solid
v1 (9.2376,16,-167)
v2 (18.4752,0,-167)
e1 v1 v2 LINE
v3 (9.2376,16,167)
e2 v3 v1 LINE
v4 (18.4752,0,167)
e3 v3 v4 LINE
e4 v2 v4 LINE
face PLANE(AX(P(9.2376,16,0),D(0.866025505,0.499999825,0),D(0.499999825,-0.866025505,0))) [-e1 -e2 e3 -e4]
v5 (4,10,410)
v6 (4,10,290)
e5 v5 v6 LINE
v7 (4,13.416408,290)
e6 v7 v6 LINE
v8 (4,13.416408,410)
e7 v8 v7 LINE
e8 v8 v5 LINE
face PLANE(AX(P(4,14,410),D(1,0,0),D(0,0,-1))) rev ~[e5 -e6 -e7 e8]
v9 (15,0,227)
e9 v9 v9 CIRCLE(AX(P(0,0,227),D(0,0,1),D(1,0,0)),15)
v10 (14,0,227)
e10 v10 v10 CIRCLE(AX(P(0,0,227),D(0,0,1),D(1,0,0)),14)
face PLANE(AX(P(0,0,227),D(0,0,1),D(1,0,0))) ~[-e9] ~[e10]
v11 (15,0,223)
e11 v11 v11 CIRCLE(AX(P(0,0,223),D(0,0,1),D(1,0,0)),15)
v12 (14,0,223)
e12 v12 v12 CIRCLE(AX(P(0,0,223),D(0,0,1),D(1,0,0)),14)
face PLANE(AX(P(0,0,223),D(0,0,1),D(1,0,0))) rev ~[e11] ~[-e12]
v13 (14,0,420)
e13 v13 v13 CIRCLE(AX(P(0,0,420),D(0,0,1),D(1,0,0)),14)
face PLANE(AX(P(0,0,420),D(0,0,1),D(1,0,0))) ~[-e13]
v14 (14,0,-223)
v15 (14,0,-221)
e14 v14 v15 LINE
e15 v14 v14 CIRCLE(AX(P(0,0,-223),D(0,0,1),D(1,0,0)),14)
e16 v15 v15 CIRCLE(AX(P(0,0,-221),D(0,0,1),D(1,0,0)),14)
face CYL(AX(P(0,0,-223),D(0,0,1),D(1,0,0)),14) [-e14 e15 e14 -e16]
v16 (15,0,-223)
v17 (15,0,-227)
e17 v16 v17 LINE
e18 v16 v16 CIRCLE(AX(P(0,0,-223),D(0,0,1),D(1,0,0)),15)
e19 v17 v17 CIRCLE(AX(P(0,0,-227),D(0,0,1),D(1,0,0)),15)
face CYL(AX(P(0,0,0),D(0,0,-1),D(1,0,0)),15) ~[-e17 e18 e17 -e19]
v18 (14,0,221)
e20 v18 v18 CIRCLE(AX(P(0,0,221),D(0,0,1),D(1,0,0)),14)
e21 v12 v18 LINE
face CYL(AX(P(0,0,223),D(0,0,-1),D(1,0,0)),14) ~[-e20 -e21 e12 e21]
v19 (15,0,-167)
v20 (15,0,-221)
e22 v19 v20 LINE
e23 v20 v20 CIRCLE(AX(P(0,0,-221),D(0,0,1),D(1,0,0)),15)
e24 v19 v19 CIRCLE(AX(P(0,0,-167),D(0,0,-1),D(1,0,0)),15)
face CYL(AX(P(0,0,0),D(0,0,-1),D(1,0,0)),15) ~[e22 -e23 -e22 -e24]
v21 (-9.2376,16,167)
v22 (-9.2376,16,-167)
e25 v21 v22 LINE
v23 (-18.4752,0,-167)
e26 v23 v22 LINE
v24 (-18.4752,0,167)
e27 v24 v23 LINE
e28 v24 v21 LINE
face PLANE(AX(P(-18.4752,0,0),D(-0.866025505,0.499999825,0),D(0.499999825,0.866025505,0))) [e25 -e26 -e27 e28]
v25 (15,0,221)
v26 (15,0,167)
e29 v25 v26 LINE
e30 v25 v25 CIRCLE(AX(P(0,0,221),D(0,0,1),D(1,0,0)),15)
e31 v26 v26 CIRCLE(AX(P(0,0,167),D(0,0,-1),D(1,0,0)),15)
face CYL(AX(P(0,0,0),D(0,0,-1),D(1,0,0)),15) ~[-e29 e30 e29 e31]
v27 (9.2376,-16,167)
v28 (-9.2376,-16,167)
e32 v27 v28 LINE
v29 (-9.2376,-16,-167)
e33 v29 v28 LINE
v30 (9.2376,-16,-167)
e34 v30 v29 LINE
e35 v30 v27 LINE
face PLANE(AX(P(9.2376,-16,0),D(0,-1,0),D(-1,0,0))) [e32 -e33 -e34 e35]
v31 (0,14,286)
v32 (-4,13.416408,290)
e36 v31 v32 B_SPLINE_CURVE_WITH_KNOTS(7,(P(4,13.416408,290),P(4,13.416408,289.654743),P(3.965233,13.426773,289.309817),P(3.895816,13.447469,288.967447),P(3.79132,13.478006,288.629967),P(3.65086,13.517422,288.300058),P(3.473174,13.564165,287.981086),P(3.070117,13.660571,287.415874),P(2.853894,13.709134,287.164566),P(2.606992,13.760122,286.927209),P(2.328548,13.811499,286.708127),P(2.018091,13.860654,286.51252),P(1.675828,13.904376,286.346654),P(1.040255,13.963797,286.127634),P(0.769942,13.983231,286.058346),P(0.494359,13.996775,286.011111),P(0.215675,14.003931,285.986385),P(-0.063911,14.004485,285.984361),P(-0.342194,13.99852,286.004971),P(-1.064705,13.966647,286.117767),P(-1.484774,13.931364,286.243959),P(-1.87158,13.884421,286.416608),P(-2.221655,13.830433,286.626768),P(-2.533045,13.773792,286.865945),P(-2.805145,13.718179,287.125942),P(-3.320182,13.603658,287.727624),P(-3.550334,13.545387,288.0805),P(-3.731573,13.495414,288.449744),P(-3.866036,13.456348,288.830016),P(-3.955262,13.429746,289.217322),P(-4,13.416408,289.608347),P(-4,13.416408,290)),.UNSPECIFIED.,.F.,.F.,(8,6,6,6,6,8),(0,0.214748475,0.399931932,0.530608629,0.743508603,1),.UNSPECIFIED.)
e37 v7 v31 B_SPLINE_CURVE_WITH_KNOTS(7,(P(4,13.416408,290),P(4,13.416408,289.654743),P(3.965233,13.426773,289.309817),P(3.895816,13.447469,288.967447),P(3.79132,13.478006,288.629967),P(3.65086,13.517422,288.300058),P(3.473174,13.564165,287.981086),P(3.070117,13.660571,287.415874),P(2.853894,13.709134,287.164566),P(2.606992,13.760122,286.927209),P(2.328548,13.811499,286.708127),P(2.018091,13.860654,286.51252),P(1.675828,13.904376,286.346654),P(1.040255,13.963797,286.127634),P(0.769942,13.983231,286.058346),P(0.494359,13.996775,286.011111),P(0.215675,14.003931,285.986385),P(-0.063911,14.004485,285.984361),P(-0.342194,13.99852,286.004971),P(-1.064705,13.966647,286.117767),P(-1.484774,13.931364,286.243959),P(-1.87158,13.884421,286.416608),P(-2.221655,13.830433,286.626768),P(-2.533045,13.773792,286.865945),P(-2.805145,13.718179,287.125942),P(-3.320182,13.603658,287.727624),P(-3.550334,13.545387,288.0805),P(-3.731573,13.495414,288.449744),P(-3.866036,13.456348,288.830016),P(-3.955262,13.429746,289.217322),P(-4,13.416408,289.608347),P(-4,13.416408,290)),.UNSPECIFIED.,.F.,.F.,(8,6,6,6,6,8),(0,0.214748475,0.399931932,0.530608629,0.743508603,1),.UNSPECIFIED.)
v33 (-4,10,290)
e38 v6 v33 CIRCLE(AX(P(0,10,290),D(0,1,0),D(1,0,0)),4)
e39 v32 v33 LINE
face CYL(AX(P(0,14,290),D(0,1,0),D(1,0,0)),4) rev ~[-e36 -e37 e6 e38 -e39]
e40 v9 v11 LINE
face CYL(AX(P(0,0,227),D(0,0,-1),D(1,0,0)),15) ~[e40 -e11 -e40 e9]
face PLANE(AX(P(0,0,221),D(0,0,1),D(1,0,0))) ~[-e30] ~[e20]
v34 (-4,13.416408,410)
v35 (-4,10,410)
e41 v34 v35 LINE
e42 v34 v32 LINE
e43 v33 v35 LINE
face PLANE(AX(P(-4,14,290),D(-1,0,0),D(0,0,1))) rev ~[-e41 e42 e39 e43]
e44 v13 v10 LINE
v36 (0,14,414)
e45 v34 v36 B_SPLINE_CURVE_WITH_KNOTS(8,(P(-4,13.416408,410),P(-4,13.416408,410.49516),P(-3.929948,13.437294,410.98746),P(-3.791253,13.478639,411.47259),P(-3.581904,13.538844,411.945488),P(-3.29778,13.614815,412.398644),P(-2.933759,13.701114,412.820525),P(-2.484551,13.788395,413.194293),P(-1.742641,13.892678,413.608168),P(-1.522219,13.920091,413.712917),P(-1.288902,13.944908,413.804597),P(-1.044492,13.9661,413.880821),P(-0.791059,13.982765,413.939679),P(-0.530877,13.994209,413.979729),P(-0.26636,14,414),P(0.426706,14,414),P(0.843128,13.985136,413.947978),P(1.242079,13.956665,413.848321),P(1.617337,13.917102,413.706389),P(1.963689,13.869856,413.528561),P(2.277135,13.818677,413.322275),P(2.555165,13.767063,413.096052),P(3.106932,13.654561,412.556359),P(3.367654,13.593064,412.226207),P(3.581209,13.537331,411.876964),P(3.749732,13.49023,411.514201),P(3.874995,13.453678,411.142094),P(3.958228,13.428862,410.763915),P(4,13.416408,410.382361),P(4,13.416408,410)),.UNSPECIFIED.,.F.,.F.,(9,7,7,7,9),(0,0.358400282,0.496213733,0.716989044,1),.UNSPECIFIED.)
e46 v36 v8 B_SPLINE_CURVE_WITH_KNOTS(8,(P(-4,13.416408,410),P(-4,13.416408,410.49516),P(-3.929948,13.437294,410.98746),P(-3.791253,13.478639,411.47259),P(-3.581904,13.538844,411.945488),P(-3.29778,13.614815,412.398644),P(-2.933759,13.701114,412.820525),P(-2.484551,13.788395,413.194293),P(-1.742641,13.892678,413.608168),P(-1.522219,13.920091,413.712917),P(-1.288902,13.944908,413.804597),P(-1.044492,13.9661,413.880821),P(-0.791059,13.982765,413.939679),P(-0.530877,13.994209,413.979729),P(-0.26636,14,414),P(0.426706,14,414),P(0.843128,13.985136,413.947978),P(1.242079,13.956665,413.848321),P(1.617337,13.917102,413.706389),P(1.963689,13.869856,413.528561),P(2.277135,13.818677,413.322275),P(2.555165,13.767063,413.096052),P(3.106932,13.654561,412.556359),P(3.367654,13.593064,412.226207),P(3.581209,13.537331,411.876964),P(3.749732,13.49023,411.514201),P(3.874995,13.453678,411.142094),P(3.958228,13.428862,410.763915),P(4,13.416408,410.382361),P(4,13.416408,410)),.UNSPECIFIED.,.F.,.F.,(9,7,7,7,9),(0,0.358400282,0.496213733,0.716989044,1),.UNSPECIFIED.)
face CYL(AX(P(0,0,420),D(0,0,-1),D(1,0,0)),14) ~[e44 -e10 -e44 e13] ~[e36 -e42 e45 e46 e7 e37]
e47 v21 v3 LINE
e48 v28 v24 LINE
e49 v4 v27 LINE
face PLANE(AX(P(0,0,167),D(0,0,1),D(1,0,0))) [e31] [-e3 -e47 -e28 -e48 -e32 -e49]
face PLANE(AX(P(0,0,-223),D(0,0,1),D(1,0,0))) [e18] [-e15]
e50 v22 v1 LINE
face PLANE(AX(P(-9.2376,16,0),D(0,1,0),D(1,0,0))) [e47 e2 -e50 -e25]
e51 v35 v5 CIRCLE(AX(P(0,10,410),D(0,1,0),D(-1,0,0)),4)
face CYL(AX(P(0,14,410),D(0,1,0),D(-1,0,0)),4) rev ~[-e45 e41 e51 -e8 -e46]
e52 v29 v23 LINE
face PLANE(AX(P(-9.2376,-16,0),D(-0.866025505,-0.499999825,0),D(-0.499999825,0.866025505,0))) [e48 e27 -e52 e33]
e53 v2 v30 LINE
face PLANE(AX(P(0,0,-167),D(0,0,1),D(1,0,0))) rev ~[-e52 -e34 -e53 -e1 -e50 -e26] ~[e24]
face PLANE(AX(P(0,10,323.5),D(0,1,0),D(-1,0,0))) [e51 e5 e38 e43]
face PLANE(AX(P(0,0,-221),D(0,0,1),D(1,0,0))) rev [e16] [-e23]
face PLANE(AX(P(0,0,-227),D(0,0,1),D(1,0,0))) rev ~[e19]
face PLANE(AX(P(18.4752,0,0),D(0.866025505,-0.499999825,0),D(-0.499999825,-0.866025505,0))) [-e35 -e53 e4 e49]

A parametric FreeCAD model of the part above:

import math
import FreeCAD as App
import Part
import Sketcher
from FreeCAD import Vector
Q = App.Units.Quantity

doc = App.newDocument("Part")
body = doc.addObject("PartDesign::Body", "Body")

# Sketch on XY plane
sketch1 = body.newObject("Sketcher::SketchObject", "Sketch")
sketch1.AttachmentSupport = (doc.getObject("XY_Plane"), [""])
sketch1.MapMode = "FlatFace"
sketch1.addGeometry([
    Part.LineSegment(Vector(-18.4752, 0, 0), Vector(-9.2376, -16, 0)),  # 0
    Part.LineSegment(Vector(-9.2376, -16, 0), Vector(9.2376, -16, 0)),  # 1
    Part.LineSegment(Vector(9.2376, -16, 0), Vector(18.4752, 0, 0)),  # 2
    Part.LineSegment(Vector(18.4752, 0, 0), Vector(9.2376, 16, 0)),  # 3
    Part.LineSegment(Vector(9.2376, 16, 0), Vector(-9.2376, 16, 0)),  # 4
    Part.LineSegment(Vector(-9.2376, 16, 0), Vector(-18.4752, 0, 0)),  # 5
], False)
sketch1.addConstraint([
    Sketcher.Constraint("Coincident", 0, 2, 1, 1),
    Sketcher.Constraint("Coincident", 1, 2, 2, 1),
    Sketcher.Constraint("Coincident", 2, 2, 3, 1),
    Sketcher.Constraint("Coincident", 3, 2, 4, 1),
    Sketcher.Constraint("Coincident", 4, 2, 5, 1),
    Sketcher.Constraint("Coincident", 5, 2, 0, 1),
    Sketcher.Constraint("Horizontal", 1),
    Sketcher.Constraint("Horizontal", 4),
    Sketcher.Constraint("Symmetric", 0, 2, 3, 2, -1, 1),
    Sketcher.Constraint("Symmetric", 2, 2, 5, 2, -1, 1),
    Sketcher.Constraint("PointOnObject", 2, 2, -1),
    Sketcher.Constraint("Parallel", 2, 5),
    Sketcher.Constraint("Vertical", 1, 2, 3, 2),
    Sketcher.Constraint("DistanceY", 1, 2, 3, 2, 32.0),
    Sketcher.Constraint("Angle", 0, Q("-60 deg")),
    Sketcher.Constraint("DistanceX", 1, 1, 1, 2, 18.4752),
])
pad1 = body.newObject("PartDesign::Pad", "Pad")
pad1.Profile = sketch1
pad1.Length = 334
pad1.Midplane = True

# Sketch on XZ plane
sketch2 = body.newObject("Sketcher::SketchObject", "Sketch001")
sketch2.AttachmentSupport = (doc.getObject("XZ_Plane"), [""])
sketch2.MapMode = "FlatFace"
sketch2.addGeometry([
    Part.LineSegment(Vector(15, -227, 0), Vector(0, -227, 0)),  # 0
    Part.LineSegment(Vector(0, -227, 0), Vector(0, 420, 0)),  # 1
    Part.LineSegment(Vector(0, 420, 0), Vector(14, 420, 0)),  # 2
    Part.LineSegment(Vector(14, 420, 0), Vector(14, 227, 0)),  # 3
    Part.LineSegment(Vector(14, 227, 0), Vector(15, 227, 0)),  # 4
    Part.LineSegment(Vector(15, 227, 0), Vector(15, 223, 0)),  # 5
    Part.LineSegment(Vector(15, 223, 0), Vector(14, 223, 0)),  # 6
    Part.LineSegment(Vector(14, 223, 0), Vector(14, 221, 0)),  # 7
    Part.LineSegment(Vector(14, 221, 0), Vector(15, 221, 0)),  # 8
    Part.LineSegment(Vector(15, 221, 0), Vector(15, -221, 0)),  # 9
    Part.LineSegment(Vector(15, -221, 0), Vector(14, -221, 0)),  # 10
    Part.LineSegment(Vector(14, -221, 0), Vector(14, -223, 0)),  # 11
    Part.LineSegment(Vector(14, -223, 0), Vector(15, -223, 0)),  # 12
    Part.LineSegment(Vector(15, -223, 0), Vector(15, -227, 0)),  # 13
], False)
sketch2.addConstraint([
    Sketcher.Constraint("Coincident", 0, 2, 1, 1),
    Sketcher.Constraint("Coincident", 1, 2, 2, 1),
    Sketcher.Constraint("Coincident", 2, 2, 3, 1),
    Sketcher.Constraint("Coincident", 3, 2, 4, 1),
    Sketcher.Constraint("Coincident", 4, 2, 5, 1),
    Sketcher.Constraint("Coincident", 5, 2, 6, 1),
    Sketcher.Constraint("Coincident", 6, 2, 7, 1),
    Sketcher.Constraint("Coincident", 7, 2, 8, 1),
    Sketcher.Constraint("Coincident", 8, 2, 9, 1),
    Sketcher.Constraint("Coincident", 9, 2, 10, 1),
    Sketcher.Constraint("Coincident", 10, 2, 11, 1),
    Sketcher.Constraint("Coincident", 11, 2, 12, 1),
    Sketcher.Constraint("Coincident", 12, 2, 13, 1),
    Sketcher.Constraint("Coincident", 13, 2, 0, 1),
    Sketcher.Constraint("Horizontal", 0),
    Sketcher.Constraint("Vertical", 1),
    Sketcher.Constraint("Horizontal", 2),
    Sketcher.Constraint("Vertical", 3),
    Sketcher.Constraint("Horizontal", 4),
    Sketcher.Constraint("Vertical", 5),
    Sketcher.Constraint("Horizontal", 6),
    Sketcher.Constraint("Vertical", 7),
    Sketcher.Constraint("Horizontal", 8),
    Sketcher.Constraint("Vertical", 9),
    Sketcher.Constraint("Horizontal", 10),
    Sketcher.Constraint("Vertical", 11),
    Sketcher.Constraint("Horizontal", 12),
    Sketcher.Constraint("Vertical", 13),
    Sketcher.Constraint("Symmetric", 7, 2, 10, 2, -1),
    Sketcher.Constraint("Symmetric", 5, 2, 12, 2, -1),
    Sketcher.Constraint("PointOnObject", 0, 2, -2),
    Sketcher.Constraint("Vertical", 3, 2, 6, 2),
    Sketcher.Constraint("Vertical", 5, 2, 8, 2),
    Sketcher.Constraint("Equal", 5, 13),
    Sketcher.Constraint("DistanceY", 5, 2, 5, 1, 4.0),
    Sketcher.Constraint("DistanceY", 7, 2, 7, 1, 2.0),
    Sketcher.Constraint("DistanceY", 0, 2, -1, 1, 227.0),
    Sketcher.Constraint("DistanceY", -1, 1, 1, 2, 420.0),
    Sketcher.Constraint("DistanceX", 0, 2, 0, 1, 15.0),
    Sketcher.Constraint("DistanceX", 2, 1, 2, 2, 14.0),
])
revolution = body.newObject("PartDesign::Revolution", "Revolution")
revolution.Profile = sketch2
revolution.ReferenceAxis = (sketch2, ["V_Axis"])
revolution.Angle = 360

# Sketch on XZ plane
sketch3 = body.newObject("Sketcher::SketchObject", "Sketch002")
sketch3.AttachmentSupport = (doc.getObject("XZ_Plane"), [""])
sketch3.MapMode = "FlatFace"
sketch3.AttachmentOffset = App.Placement(Vector(0, 0, -14), App.Rotation())
sketch3.addGeometry([
    Part.ArcOfCircle(Part.Circle(Vector(0, 410, 0), Vector(0, 0, 1), 4), math.radians(0), math.radians(180)),
    Part.LineSegment(Vector(4, 410, 0), Vector(4, 290, 0)),
    Part.ArcOfCircle(Part.Circle(Vector(0, 290, 0), Vector(0, 0, 1), 4), math.radians(180), math.radians(360)),
    Part.LineSegment(Vector(-4, 290, 0), Vector(-4, 410, 0)),
], False)
sketch3.addConstraint([
    Sketcher.Constraint("Tangent", 0, 1, 1, 1),
    Sketcher.Constraint("Tangent", 1, 2, 2, 2),
    Sketcher.Constraint("Tangent", 2, 1, 3, 1),
    Sketcher.Constraint("Tangent", 3, 2, 0, 2),
    Sketcher.Constraint("Vertical", 1),
    Sketcher.Constraint("Vertical", 3),
    Sketcher.Constraint("PointOnObject", 0, 3, -2),
    Sketcher.Constraint("Radius", 0, 4.0),
    Sketcher.Constraint("DistanceY", 1, 2, 1, 1, 120.0),
    Sketcher.Constraint("DistanceY", -1, 1, 0, 3, 410.0),
])
pocket1 = body.newObject("PartDesign::Pocket", "Pocket")
pocket1.Profile = sketch3
pocket1.Length = 4
pocket1.Reversed = True

doc.recompute()
